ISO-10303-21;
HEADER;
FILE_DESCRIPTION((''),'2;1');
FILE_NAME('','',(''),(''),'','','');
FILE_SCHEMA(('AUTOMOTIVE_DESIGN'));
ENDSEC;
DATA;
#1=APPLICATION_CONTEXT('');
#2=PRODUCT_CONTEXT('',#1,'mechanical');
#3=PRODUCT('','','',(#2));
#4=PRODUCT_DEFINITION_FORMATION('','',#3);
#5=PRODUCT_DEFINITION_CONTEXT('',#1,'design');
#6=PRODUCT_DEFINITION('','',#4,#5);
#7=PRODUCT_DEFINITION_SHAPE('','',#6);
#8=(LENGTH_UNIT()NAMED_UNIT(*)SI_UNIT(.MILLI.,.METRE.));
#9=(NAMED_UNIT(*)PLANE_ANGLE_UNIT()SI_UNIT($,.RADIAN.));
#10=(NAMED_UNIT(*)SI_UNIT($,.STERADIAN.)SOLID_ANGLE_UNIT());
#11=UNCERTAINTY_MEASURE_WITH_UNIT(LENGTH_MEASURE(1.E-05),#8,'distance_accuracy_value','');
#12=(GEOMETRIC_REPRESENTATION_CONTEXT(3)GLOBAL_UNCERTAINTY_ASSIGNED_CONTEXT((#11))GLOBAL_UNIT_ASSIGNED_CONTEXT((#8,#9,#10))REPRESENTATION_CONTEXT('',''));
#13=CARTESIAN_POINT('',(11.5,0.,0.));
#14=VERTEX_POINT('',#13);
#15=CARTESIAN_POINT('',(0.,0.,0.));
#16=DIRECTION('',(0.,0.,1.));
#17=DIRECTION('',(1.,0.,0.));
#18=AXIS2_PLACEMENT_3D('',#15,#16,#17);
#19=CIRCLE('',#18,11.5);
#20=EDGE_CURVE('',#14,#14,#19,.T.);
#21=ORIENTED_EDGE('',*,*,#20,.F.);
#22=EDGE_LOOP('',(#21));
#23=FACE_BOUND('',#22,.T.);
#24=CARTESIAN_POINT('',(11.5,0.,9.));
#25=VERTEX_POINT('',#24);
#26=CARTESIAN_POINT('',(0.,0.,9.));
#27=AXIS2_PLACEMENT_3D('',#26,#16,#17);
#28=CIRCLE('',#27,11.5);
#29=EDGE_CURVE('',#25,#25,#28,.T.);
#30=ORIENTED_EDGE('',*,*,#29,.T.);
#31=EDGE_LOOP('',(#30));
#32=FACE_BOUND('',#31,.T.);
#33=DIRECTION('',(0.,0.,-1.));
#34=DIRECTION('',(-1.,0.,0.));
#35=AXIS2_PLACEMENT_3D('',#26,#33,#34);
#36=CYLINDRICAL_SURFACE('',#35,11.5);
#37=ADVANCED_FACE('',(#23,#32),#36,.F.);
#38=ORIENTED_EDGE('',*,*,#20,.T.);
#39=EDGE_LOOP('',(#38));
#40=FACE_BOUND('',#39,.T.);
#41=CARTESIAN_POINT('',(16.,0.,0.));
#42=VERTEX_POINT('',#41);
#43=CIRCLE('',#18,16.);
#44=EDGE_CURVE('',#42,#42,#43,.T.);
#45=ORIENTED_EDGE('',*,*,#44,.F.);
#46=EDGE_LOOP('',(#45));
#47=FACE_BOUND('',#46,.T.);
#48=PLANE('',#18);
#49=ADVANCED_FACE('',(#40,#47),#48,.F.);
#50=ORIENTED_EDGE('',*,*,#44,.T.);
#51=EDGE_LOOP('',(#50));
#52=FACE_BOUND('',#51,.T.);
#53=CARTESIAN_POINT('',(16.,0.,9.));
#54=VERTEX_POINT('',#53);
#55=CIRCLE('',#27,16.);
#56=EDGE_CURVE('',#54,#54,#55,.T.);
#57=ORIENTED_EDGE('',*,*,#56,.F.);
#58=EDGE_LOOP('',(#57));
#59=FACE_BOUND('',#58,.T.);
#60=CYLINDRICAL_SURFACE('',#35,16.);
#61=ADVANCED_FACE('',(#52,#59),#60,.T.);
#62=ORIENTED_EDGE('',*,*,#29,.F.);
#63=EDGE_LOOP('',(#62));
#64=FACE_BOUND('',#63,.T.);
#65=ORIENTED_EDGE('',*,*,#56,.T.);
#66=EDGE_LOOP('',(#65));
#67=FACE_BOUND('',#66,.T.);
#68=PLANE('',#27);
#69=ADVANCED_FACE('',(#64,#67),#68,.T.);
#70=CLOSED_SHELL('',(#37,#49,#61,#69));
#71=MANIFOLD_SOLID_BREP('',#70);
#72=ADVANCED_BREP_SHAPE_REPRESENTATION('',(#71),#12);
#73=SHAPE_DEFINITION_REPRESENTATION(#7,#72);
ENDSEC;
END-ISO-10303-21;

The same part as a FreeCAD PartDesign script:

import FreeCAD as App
import Part
import Sketcher
from FreeCAD import Vector
Q = App.Units.Quantity

doc = App.newDocument("Part")
body = doc.addObject("PartDesign::Body", "Body")

# Sketch on XY plane
sketch1 = doc.addObject("Sketcher::SketchObject", "Sketch")
body.addObject(sketch1)
sketch1.AttachmentSupport = (doc.XY_Plane, [""])
sketch1.MapMode = "FlatFace"
sketch1.addGeometry([
    Part.Circle(Vector(0, 0, 0), Vector(0, 0, 1), 16),
    Part.Circle(Vector(0, 0, 0), Vector(0, 0, 1), 12),
], False)
sketch1.addConstraint([
    Sketcher.Constraint("Coincident", 0, 3, -1, 1),
    Sketcher.Constraint("Coincident", 1, 3, -1, 1),
    Sketcher.Constraint("Diameter", 0, Q("32 mm")),
    Sketcher.Constraint("Diameter", 1, Q("23 mm")),
])
pad1 = doc.addObject("PartDesign::Pad", "Pad")
body.addObject(pad1)
pad1.Profile = sketch1
pad1.Length = 9

doc.recompute()
